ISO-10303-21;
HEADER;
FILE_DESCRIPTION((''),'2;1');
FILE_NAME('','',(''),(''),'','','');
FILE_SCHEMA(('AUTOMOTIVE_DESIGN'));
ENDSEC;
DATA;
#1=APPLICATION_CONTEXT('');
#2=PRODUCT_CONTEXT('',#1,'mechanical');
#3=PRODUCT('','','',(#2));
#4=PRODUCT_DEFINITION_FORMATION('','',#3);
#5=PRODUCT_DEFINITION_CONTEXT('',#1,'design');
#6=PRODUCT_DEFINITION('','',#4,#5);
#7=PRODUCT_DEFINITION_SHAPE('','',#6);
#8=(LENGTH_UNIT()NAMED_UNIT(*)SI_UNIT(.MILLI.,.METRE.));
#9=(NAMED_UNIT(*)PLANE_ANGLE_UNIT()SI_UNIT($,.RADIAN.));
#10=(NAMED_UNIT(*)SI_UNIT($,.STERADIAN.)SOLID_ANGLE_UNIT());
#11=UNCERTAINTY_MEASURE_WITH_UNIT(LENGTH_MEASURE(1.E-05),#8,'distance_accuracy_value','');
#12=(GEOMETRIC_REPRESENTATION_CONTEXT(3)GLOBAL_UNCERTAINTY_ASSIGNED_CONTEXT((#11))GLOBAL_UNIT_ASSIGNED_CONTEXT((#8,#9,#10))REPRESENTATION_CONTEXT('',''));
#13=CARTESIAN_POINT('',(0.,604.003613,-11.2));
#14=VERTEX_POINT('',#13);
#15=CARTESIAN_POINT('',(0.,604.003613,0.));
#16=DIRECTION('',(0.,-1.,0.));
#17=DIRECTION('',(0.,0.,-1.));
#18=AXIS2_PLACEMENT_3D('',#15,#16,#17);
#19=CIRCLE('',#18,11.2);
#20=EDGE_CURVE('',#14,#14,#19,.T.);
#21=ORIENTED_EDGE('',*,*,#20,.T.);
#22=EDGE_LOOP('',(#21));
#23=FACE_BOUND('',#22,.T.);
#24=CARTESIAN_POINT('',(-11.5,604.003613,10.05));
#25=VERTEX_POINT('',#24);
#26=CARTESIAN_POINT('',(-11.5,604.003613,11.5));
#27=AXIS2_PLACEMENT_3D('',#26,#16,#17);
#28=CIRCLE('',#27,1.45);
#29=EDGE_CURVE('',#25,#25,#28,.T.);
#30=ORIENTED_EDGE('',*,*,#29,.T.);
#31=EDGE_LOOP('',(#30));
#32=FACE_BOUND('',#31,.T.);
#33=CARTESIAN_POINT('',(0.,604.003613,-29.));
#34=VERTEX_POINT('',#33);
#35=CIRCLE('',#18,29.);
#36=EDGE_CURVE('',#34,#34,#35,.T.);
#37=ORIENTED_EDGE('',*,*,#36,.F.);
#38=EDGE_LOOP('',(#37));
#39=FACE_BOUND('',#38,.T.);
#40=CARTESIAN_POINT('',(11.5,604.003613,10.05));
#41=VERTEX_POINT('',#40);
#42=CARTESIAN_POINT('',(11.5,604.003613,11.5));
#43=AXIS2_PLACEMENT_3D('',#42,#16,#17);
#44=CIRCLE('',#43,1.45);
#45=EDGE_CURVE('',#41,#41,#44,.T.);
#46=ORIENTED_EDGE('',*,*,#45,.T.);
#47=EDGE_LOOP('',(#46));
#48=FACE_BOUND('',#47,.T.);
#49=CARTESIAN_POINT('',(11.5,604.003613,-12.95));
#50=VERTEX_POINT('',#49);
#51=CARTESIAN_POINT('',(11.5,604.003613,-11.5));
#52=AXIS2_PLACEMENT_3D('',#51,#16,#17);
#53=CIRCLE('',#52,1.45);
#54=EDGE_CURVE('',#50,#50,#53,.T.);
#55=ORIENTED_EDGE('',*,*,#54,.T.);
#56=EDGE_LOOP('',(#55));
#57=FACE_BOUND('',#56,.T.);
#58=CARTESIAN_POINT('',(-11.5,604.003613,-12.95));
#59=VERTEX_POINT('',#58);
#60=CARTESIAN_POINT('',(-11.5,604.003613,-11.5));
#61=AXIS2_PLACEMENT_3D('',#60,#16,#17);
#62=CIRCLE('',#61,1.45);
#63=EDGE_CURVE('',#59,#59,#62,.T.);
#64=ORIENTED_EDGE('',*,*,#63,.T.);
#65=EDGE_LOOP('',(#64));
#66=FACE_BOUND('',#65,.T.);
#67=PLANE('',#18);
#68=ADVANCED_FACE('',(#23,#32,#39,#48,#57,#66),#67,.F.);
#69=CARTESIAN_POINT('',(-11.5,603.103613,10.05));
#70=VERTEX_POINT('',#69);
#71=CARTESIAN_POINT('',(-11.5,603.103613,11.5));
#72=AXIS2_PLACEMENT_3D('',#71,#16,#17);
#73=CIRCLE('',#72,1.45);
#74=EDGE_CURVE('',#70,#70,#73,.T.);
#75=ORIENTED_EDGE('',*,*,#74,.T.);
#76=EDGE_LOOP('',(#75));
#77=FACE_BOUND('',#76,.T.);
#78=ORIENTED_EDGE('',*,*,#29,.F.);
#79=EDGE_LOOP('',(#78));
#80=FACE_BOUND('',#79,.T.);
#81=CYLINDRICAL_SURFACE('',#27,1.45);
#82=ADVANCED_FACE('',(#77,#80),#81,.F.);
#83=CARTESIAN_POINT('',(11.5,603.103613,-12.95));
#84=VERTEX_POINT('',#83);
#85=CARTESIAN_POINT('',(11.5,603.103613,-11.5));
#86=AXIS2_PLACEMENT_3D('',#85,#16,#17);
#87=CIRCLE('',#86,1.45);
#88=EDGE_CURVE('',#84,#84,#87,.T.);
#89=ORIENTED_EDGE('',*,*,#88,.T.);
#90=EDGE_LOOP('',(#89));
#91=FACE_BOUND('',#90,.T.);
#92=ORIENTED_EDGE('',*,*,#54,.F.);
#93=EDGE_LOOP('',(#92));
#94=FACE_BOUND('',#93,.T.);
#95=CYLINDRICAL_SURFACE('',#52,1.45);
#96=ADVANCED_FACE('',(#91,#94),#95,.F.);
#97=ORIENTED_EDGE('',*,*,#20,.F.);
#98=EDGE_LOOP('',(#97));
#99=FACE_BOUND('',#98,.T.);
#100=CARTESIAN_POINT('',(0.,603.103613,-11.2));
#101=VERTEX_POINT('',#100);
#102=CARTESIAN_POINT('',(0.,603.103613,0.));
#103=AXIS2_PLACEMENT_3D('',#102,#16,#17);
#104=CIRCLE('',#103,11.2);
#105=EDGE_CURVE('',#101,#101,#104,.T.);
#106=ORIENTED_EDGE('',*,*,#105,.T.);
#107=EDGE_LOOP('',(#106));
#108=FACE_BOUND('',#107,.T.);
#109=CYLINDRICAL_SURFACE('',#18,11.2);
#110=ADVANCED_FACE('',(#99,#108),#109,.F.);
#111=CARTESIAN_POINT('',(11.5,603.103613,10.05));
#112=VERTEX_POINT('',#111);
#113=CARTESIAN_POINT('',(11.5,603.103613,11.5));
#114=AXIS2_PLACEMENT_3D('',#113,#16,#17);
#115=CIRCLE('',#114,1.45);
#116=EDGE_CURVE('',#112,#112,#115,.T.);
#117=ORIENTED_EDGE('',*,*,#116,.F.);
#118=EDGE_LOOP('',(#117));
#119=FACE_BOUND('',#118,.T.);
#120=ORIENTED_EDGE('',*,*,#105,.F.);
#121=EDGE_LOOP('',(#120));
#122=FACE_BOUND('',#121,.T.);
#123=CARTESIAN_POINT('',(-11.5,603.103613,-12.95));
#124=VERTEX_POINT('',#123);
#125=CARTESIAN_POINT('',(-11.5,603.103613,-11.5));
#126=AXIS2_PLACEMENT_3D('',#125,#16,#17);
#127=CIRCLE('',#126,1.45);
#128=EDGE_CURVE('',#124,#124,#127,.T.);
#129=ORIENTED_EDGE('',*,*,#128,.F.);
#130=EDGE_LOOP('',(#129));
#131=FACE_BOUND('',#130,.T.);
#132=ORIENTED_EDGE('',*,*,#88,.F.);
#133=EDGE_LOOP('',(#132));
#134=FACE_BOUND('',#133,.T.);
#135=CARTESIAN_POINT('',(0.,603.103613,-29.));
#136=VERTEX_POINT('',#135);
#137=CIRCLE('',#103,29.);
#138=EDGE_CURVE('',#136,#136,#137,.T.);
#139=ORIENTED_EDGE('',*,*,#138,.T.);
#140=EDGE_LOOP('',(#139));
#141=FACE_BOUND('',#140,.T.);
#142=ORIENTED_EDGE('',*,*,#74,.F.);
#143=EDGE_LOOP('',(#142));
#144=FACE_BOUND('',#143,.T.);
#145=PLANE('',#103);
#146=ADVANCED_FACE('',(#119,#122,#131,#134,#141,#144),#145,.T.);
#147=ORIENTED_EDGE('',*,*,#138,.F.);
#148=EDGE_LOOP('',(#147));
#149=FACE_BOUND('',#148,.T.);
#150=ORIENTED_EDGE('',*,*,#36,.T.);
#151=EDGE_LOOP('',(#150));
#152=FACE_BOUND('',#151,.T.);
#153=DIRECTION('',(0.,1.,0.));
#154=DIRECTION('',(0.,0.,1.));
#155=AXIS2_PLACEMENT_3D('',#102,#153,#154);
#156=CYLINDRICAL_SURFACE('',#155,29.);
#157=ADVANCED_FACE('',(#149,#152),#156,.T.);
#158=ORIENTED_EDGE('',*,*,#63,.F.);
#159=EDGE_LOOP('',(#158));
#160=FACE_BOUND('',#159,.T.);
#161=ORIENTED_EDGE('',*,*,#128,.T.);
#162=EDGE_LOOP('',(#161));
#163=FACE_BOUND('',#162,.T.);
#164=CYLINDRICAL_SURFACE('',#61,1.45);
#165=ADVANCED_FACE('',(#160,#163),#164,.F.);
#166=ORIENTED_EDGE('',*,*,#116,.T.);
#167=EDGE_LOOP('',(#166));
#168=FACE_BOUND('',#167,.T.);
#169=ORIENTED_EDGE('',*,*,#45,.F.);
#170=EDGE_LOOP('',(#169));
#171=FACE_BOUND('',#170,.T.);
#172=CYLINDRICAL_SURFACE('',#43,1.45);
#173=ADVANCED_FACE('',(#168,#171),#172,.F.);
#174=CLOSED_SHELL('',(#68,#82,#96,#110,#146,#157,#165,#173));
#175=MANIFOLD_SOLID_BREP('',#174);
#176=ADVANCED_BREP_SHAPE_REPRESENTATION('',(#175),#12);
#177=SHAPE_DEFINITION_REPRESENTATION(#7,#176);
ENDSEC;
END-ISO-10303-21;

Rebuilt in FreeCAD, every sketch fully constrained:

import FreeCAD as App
import Part
import Sketcher

V = App.Vector
Q = App.Units.Quantity

doc = App.newDocument("Part")
body = doc.addObject("PartDesign::Body", "Body")

sketch1 = doc.addObject("Sketcher::SketchObject", "Sketch")
body.addObject(sketch1)
sketch1.AttachmentSupport = (doc.XZ_Plane, [""])
sketch1.MapMode = "FlatFace"
sketch1.AttachmentOffset = App.Placement(V(0, 0, -604.003613), App.Rotation())
sketch1.addGeometry(Part.Circle(V(0, 0, 0), V(0, 0, 1), 29), False)
sketch1.addConstraint(Sketcher.Constraint("Coincident", 0, 3, -1, 1))
sketch1.addConstraint(Sketcher.Constraint("Diameter", 0, Q("58 mm")))
pad1 = doc.addObject("PartDesign::Pad", "Pad")
body.addObject(pad1)
pad1.Profile = sketch1
pad1.Length = 0.9

sketch2 = doc.addObject("Sketcher::SketchObject", "Sketch001")
body.addObject(sketch2)
sketch2.AttachmentSupport = (doc.XZ_Plane, [""])
sketch2.MapMode = "FlatFace"
sketch2.AttachmentOffset = App.Placement(V(0, 0, -603.103613), App.Rotation())
sketch2.addGeometry(Part.Circle(V(11.5, -11.5, 0), V(0, 0, 1), 1.4), False)
sketch2.addGeometry(Part.Circle(V(-11.5, -11.5, 0), V(0, 0, 1), 1.4), False)
sketch2.addGeometry(Part.Circle(V(11.5, 11.5, 0), V(0, 0, 1), 1.4), False)
sketch2.addGeometry(Part.Circle(V(-11.5, 11.5, 0), V(0, 0, 1), 1.4), False)
sketch2.addGeometry(Part.Circle(V(0, 0, 0), V(0, 0, 1), 11.2), False)
sketch2.addConstraint(Sketcher.Constraint("Coincident", 4, 3, -1, 1))
sketch2.addConstraint(Sketcher.Constraint("Equal", 0, 1))
sketch2.addConstraint(Sketcher.Constraint("Equal", 1, 2))
sketch2.addConstraint(Sketcher.Constraint("Equal", 2, 3))
sketch2.addConstraint(Sketcher.Constraint("Symmetric", 1, 3, 2, 3, -1, 1))
sketch2.addConstraint(Sketcher.Constraint("Symmetric", 0, 3, 3, 3, -1, 1))
sketch2.addConstraint(Sketcher.Constraint("Symmetric", 0, 3, 1, 3, -2))
sketch2.addConstraint(Sketcher.Constraint("Diameter", 0, Q("2.9 mm")))
sketch2.addConstraint(Sketcher.Constraint("Diameter", 4, Q("22.4 mm")))
sketch2.addConstraint(Sketcher.Constraint("DistanceX", 1, 3, 0, 3, Q("23 mm")))
sketch2.addConstraint(Sketcher.Constraint("DistanceY", 0, 3, 2, 3, Q("23 mm")))
pocket1 = doc.addObject("PartDesign::Pocket", "Pocket")
body.addObject(pocket1)
pocket1.Profile = sketch2
pocket1.Length = 0.9

doc.recompute()
